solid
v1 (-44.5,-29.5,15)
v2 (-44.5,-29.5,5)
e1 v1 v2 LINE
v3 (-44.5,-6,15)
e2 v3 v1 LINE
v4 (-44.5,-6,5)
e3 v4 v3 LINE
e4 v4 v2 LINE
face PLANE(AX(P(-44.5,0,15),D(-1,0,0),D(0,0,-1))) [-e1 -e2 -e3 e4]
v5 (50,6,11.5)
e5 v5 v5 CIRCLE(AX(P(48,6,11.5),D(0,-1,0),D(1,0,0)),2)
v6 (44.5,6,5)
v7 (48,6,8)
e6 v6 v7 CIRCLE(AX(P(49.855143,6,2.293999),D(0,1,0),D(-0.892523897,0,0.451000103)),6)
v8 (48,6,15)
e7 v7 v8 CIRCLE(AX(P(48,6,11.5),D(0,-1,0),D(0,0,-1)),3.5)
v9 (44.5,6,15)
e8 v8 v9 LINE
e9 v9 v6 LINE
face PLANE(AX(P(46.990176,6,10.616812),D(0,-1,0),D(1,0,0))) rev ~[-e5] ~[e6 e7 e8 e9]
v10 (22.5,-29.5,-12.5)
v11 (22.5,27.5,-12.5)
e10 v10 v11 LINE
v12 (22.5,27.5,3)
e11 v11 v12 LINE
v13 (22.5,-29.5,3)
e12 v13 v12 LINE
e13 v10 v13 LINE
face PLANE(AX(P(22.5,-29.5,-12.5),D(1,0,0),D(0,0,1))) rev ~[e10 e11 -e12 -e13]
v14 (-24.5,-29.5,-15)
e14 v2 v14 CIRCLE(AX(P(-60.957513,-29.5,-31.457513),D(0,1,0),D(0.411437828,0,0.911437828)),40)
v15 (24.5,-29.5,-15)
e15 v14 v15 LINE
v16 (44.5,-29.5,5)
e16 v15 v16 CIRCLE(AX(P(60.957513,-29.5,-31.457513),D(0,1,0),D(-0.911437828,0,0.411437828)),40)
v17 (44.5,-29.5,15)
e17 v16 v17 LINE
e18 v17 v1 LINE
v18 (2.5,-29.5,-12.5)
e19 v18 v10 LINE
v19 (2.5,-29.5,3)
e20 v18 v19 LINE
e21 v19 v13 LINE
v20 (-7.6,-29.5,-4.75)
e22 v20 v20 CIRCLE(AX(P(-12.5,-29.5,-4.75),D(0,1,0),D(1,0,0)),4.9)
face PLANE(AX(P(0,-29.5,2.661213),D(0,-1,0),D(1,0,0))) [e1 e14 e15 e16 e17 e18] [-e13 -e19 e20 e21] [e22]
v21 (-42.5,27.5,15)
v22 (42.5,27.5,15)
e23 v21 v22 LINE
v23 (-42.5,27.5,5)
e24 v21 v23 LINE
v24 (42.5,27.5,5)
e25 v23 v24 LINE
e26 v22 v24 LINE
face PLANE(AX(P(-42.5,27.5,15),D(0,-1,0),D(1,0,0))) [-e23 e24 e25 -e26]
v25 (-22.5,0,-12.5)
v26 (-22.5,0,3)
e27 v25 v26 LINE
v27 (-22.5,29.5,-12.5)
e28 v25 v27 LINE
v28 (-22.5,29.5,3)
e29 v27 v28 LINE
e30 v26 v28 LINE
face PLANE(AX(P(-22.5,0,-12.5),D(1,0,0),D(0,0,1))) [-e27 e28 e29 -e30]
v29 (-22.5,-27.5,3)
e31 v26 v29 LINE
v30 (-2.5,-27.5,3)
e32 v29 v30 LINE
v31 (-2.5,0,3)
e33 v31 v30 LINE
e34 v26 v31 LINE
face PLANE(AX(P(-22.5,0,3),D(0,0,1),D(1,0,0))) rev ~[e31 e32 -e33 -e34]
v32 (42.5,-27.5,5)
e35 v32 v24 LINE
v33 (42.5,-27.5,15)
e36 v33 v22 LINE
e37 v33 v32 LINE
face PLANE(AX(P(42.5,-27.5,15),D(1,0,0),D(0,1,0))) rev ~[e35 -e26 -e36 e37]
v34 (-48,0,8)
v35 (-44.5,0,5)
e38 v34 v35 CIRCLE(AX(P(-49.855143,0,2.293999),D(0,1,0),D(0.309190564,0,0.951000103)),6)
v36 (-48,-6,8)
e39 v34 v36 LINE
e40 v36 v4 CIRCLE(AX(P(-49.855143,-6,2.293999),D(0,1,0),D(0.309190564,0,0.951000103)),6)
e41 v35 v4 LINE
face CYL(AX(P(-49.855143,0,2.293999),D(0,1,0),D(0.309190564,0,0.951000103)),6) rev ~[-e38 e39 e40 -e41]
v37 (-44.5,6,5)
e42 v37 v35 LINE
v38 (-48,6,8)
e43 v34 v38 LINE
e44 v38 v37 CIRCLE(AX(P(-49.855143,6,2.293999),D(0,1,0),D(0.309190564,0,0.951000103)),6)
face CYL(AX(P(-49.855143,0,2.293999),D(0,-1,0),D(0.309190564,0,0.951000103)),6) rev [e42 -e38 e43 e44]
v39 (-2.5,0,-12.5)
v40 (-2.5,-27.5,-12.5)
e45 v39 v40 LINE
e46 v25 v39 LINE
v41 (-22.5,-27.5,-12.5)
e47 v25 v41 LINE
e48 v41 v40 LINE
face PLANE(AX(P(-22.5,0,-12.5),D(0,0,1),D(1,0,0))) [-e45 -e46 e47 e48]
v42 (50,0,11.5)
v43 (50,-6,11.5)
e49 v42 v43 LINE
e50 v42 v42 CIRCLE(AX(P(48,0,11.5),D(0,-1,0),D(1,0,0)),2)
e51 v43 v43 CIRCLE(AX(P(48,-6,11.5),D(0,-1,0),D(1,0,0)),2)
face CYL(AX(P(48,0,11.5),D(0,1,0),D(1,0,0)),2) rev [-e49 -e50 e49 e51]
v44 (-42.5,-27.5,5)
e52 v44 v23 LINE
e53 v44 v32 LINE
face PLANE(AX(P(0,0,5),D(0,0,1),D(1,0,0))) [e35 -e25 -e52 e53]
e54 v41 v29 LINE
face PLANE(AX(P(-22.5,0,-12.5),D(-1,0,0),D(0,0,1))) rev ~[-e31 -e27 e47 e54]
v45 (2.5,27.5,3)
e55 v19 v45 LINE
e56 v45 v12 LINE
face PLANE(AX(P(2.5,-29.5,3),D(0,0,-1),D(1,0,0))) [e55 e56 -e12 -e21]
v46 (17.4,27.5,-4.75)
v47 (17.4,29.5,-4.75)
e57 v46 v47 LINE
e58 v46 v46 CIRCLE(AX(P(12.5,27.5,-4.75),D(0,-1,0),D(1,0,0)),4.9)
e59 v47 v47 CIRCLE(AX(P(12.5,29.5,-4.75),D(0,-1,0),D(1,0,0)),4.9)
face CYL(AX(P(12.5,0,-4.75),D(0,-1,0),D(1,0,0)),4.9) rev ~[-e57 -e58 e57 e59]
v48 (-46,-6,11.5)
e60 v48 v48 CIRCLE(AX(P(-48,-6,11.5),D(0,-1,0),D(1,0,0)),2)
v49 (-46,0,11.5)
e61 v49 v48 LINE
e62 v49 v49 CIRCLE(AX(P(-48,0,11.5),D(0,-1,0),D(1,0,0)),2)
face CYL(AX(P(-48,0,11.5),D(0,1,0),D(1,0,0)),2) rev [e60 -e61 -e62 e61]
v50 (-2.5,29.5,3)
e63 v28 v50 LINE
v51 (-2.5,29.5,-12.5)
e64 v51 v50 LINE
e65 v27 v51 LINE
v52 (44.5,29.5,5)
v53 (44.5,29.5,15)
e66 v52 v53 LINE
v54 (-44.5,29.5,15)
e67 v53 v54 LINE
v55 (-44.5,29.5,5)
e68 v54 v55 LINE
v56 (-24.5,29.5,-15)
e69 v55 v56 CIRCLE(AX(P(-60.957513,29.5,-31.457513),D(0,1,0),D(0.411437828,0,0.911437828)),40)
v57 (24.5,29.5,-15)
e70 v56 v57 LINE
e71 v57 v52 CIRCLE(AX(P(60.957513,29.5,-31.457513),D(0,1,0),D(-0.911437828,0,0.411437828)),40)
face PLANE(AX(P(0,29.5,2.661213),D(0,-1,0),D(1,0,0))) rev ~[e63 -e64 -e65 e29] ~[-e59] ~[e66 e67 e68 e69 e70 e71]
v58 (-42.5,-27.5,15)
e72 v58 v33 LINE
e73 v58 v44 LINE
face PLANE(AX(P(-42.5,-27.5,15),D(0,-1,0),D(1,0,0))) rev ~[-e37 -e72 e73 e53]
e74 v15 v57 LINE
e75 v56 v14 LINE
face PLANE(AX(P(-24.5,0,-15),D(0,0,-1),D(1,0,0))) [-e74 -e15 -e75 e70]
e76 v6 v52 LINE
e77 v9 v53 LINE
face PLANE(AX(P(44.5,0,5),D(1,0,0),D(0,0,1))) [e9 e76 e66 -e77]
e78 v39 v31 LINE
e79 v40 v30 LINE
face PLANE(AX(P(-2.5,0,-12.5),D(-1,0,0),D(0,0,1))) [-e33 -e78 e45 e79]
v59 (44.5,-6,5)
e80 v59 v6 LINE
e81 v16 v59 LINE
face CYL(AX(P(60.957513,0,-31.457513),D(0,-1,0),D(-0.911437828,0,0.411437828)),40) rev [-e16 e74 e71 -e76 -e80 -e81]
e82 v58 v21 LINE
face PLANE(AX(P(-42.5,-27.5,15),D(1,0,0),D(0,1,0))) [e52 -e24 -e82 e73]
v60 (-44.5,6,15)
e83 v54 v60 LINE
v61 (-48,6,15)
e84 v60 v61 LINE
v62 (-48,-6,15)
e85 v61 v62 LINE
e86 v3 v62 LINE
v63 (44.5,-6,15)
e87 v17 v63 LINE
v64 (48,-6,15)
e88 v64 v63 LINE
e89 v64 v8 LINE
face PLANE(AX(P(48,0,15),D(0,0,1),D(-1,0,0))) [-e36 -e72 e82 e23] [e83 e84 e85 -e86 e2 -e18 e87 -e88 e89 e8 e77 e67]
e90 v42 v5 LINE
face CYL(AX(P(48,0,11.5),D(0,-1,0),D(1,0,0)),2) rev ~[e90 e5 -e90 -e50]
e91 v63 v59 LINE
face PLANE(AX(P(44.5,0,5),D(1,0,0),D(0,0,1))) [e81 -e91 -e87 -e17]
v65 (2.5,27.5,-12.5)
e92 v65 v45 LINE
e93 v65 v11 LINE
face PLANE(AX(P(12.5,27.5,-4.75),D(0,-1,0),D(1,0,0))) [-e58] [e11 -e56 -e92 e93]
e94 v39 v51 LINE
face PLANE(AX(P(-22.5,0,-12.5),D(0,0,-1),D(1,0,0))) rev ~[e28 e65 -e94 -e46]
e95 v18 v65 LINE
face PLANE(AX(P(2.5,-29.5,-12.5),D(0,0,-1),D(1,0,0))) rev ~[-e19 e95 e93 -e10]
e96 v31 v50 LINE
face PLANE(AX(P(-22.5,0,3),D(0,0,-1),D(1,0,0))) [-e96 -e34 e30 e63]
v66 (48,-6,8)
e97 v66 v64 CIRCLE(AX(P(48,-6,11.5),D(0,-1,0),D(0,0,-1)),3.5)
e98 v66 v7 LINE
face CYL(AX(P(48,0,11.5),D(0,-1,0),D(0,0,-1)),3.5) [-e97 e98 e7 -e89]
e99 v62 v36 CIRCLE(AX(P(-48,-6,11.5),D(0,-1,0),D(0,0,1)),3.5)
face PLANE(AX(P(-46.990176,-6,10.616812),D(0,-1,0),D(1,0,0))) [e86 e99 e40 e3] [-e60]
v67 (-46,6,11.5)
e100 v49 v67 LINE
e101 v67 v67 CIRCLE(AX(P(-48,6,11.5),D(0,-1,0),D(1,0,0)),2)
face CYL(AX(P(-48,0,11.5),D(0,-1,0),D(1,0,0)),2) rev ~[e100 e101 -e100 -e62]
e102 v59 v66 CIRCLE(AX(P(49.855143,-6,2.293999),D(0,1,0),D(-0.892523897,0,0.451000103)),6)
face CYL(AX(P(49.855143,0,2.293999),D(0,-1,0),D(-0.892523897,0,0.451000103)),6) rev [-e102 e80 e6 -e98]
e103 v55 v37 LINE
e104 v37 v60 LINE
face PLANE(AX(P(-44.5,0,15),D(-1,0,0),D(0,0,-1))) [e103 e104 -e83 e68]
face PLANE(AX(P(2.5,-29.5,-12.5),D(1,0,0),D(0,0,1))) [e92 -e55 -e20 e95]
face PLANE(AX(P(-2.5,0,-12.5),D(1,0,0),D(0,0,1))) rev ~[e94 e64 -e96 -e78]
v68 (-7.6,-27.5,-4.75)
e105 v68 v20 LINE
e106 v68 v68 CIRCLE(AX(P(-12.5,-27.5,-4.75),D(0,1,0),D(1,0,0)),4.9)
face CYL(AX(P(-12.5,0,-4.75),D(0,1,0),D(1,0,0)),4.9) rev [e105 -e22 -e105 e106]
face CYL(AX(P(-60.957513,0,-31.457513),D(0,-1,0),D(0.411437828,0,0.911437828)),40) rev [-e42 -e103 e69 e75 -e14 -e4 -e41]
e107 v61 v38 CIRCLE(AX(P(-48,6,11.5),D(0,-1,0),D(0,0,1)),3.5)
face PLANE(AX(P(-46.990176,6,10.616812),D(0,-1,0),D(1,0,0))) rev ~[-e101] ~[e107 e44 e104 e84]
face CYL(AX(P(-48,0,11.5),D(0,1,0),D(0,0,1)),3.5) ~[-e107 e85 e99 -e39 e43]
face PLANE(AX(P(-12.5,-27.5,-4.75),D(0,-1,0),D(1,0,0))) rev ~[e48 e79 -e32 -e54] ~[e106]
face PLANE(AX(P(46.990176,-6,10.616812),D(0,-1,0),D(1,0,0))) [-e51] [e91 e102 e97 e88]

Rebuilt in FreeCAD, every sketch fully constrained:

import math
import FreeCAD as App
import Part
import Sketcher
from FreeCAD import Vector
Q = App.Units.Quantity

doc = App.newDocument("Part")
body = doc.addObject("PartDesign::Body", "Body")

# Sketch on XZ plane
sketch1 = doc.addObject("Sketcher::SketchObject", "Sketch")
body.addObject(sketch1)
sketch1.AttachmentSupport = (doc.XZ_Plane, [""])
sketch1.MapMode = "FlatFace"
sketch1.addGeometry([
    Part.LineSegment(Vector(44, 15, 0), Vector(-44, 15, 0)),  # 0
    Part.LineSegment(Vector(-44, 15, 0), Vector(-44, 5, 0)),  # 1
    Part.ArcOfCircle(Part.Circle(Vector(-61, -31, 0), Vector(0, 0, 1), 40), math.radians(24), math.radians(66)),  # 2
    Part.LineSegment(Vector(-24, -15, 0), Vector(24, -15, 0)),  # 3
    Part.ArcOfCircle(Part.Circle(Vector(61, -31, 0), Vector(0, 0, 1), 40), math.radians(114), math.radians(156)),  # 4
    Part.LineSegment(Vector(44, 5, 0), Vector(44, 15, 0)),  # 5
], False)
sketch1.addConstraint([
    Sketcher.Constraint("Coincident", 0, 2, 1, 1),
    Sketcher.Constraint("Coincident", 1, 2, 2, 2),
    Sketcher.Constraint("Coincident", 2, 1, 3, 1),
    Sketcher.Constraint("Coincident", 3, 2, 4, 2),
    Sketcher.Constraint("Coincident", 4, 1, 5, 1),
    Sketcher.Constraint("Coincident", 5, 2, 0, 1),
    Sketcher.Constraint("Horizontal", 0),
    Sketcher.Constraint("Vertical", 1),
    Sketcher.Constraint("Horizontal", 3),
    Sketcher.Constraint("Vertical", 5),
    Sketcher.Constraint("Equal", 2, 4),
    Sketcher.Constraint("Symmetric", 2, 3, 4, 3, -2),
    Sketcher.Constraint("Horizontal", 1, 2, 4, 1),
    Sketcher.Constraint("Radius", 2, Q("40 mm")),
    Sketcher.Constraint("DistanceX", 0, 2, 0, 1, Q("89 mm")),
    Sketcher.Constraint("DistanceX", 3, 1, 3, 2, Q("49 mm")),
    Sketcher.Constraint("DistanceY", 1, 2, 1, 1, Q("10 mm")),
    Sketcher.Constraint("DistanceY", -1, 1, 0, 2, Q("15 mm")),
    Sketcher.Constraint("DistanceY", 2, 1, -1, 1, Q("15 mm")),
])
pad1 = doc.addObject("PartDesign::Pad", "Pad")
body.addObject(pad1)
pad1.Profile = sketch1
pad1.Type = "TwoLengths"
pad1.Length = 29.5
pad1.Length2 = 29.5

# Sketch on XZ plane
sketch2 = doc.addObject("Sketcher::SketchObject", "Sketch001")
body.addObject(sketch2)
sketch2.AttachmentSupport = (doc.XZ_Plane, [""])
sketch2.MapMode = "FlatFace"
sketch2.addGeometry([
    Part.LineSegment(Vector(48, 15, 0), Vector(44.5, 15, 0)),  # 0
    Part.LineSegment(Vector(44.5, 15, 0), Vector(44.5, 5, 0)),  # 1
    Part.ArcOfCircle(Part.Circle(Vector(49.9, 2.3, 0), Vector(0, 0, 1), 6), math.radians(108), math.radians(153)),  # 2
    Part.ArcOfCircle(Part.Circle(Vector(48, 11.5, 0), Vector(0, 0, 1), 3.5), math.radians(-90), math.radians(90)),  # 3
    Part.Circle(Vector(48, 11.5, 0), Vector(0, 0, 1), 2),  # 4
    Part.LineSegment(Vector(-44.5, 5, 0), Vector(-44.5, 15, 0)),  # 5
    Part.LineSegment(Vector(-44.5, 15, 0), Vector(-48, 15, 0)),  # 6
    Part.ArcOfCircle(Part.Circle(Vector(-48, 11.5, 0), Vector(0, 0, 1), 3.5), math.radians(90), math.radians(270)),  # 7
    Part.ArcOfCircle(Part.Circle(Vector(-49.9, 2.3, 0), Vector(0, 0, 1), 6), math.radians(27), math.radians(72)),  # 8
    Part.Circle(Vector(-48, 11.5, 0), Vector(0, 0, 1), 2),  # 9
], False)
sketch2.addConstraint([
    Sketcher.Constraint("Coincident", 0, 2, 1, 1),
    Sketcher.Constraint("Coincident", 1, 2, 2, 2),
    Sketcher.Constraint("Coincident", 2, 1, 3, 1),
    Sketcher.Constraint("Tangent", 3, 2, 0, 1),
    Sketcher.Constraint("Coincident", 5, 2, 6, 1),
    Sketcher.Constraint("Tangent", 6, 2, 7, 1),
    Sketcher.Constraint("Coincident", 7, 2, 8, 2),
    Sketcher.Constraint("Coincident", 8, 1, 5, 1),
    Sketcher.Constraint("Horizontal", 0),
    Sketcher.Constraint("Vertical", 1),
    Sketcher.Constraint("Vertical", 5),
    Sketcher.Constraint("Horizontal", 6),
    Sketcher.Constraint("Coincident", 4, 3, 3, 3),
    Sketcher.Constraint("Coincident", 9, 3, 7, 3),
    Sketcher.Constraint("Equal", 3, 7),
    Sketcher.Constraint("Equal", 2, 8),
    Sketcher.Constraint("Equal", 4, 9),
    Sketcher.Constraint("Symmetric", 3, 3, 7, 3, -2),
    Sketcher.Constraint("Symmetric", 2, 3, 8, 3, -2),
    Sketcher.Constraint("Horizontal", 1, 2, 8, 1),
    Sketcher.Constraint("Vertical", 4, 3, 2, 1),
    Sketcher.Constraint("Diameter", 4, Q("4 mm")),
    Sketcher.Constraint("Radius", 2, Q("6 mm")),
    Sketcher.Constraint("Radius", 3, Q("3.5 mm")),
    Sketcher.Constraint("DistanceY", 1, 2, 1, 1, Q("10 mm")),
    Sketcher.Constraint("DistanceX", 0, 2, 0, 1, Q("3.5 mm")),
    Sketcher.Constraint("DistanceX", -1, 1, 3, 3, Q("48 mm")),
    Sketcher.Constraint("DistanceY", -1, 1, 0, 2, Q("15 mm")),
])
pad2 = doc.addObject("PartDesign::Pad", "Pad001")
body.addObject(pad2)
pad2.Profile = sketch2
pad2.Type = "TwoLengths"
pad2.Length = 6
pad2.Length2 = 6

# Sketch on XY plane
sketch3 = doc.addObject("Sketcher::SketchObject", "Sketch002")
body.addObject(sketch3)
sketch3.AttachmentSupport = (doc.XY_Plane, [""])
sketch3.MapMode = "FlatFace"
sketch3.AttachmentOffset = App.Placement(Vector(0, 0, 15), App.Rotation())
sketch3.addGeometry([
    Part.LineSegment(Vector(-42, 28, 0), Vector(-42, -28, 0)),
    Part.LineSegment(Vector(-42, -28, 0), Vector(42, -28, 0)),
    Part.LineSegment(Vector(42, -28, 0), Vector(42, 28, 0)),
    Part.LineSegment(Vector(42, 28, 0), Vector(-42, 28, 0)),
], False)
sketch3.addConstraint([
    Sketcher.Constraint("Coincident", 0, 2, 1, 1),
    Sketcher.Constraint("Coincident", 1, 2, 2, 1),
    Sketcher.Constraint("Coincident", 2, 2, 3, 1),
    Sketcher.Constraint("Coincident", 3, 2, 0, 1),
    Sketcher.Constraint("Vertical", 0),
    Sketcher.Constraint("Horizontal", 1),
    Sketcher.Constraint("Vertical", 2),
    Sketcher.Constraint("Horizontal", 3),
    Sketcher.Constraint("Symmetric", 0, 2, 2, 2, -1, 1),
    Sketcher.Constraint("DistanceX", 1, 1, 1, 2, Q("85 mm")),
    Sketcher.Constraint("DistanceY", 0, 2, 0, 1, Q("55 mm")),
])
pocket1 = doc.addObject("PartDesign::Pocket", "Pocket")
body.addObject(pocket1)
pocket1.Profile = sketch3
pocket1.Length = 10

# Sketch on XZ plane
sketch4 = doc.addObject("Sketcher::SketchObject", "Sketch003")
body.addObject(sketch4)
sketch4.AttachmentSupport = (doc.XZ_Plane, [""])
sketch4.MapMode = "FlatFace"
sketch4.addGeometry([
    Part.LineSegment(Vector(-22, 3, 0), Vector(-22, -12, 0)),
    Part.LineSegment(Vector(-22, -12, 0), Vector(-2, -12, 0)),
    Part.LineSegment(Vector(-2, -12, 0), Vector(-2, 3, 0)),
    Part.LineSegment(Vector(-2, 3, 0), Vector(-22, 3, 0)),
], False)
sketch4.addConstraint([
    Sketcher.Constraint("Coincident", 0, 2, 1, 1),
    Sketcher.Constraint("Coincident", 1, 2, 2, 1),
    Sketcher.Constraint("Coincident", 2, 2, 3, 1),
    Sketcher.Constraint("Coincident", 3, 2, 0, 1),
    Sketcher.Constraint("Vertical", 0),
    Sketcher.Constraint("Horizontal", 1),
    Sketcher.Constraint("Vertical", 2),
    Sketcher.Constraint("Horizontal", 3),
    Sketcher.Constraint("DistanceX", 1, 1, 1, 2, Q("20 mm")),
    Sketcher.Constraint("DistanceY", 0, 2, 0, 1, Q("15.5 mm")),
    Sketcher.Constraint("DistanceY", -1, 1, 2, 2, Q("3 mm")),
    Sketcher.Constraint("DistanceX", 0, 2, -1, 1, Q("22.5 mm")),
])
pocket2 = doc.addObject("PartDesign::Pocket", "Pocket001")
body.addObject(pocket2)
pocket2.Profile = sketch4
pocket2.Type = "TwoLengths"
pocket2.Length = 29.5
pocket2.Length2 = 27.5

# Sketch on XZ plane
sketch5 = doc.addObject("Sketcher::SketchObject", "Sketch004")
body.addObject(sketch5)
sketch5.AttachmentSupport = (doc.XZ_Plane, [""])
sketch5.MapMode = "FlatFace"
sketch5.AttachmentOffset = App.Placement(Vector(0, 0, 29.5), App.Rotation())
sketch5.addGeometry([
    Part.LineSegment(Vector(2, 3, 0), Vector(2, -12, 0)),
    Part.LineSegment(Vector(2, -12, 0), Vector(22, -12, 0)),
    Part.LineSegment(Vector(22, -12, 0), Vector(22, 3, 0)),
    Part.LineSegment(Vector(22, 3, 0), Vector(2, 3, 0)),
], False)
sketch5.addConstraint([
    Sketcher.Constraint("Coincident", 0, 2, 1, 1),
    Sketcher.Constraint("Coincident", 1, 2, 2, 1),
    Sketcher.Constraint("Coincident", 2, 2, 3, 1),
    Sketcher.Constraint("Coincident", 3, 2, 0, 1),
    Sketcher.Constraint("Vertical", 0),
    Sketcher.Constraint("Horizontal", 1),
    Sketcher.Constraint("Vertical", 2),
    Sketcher.Constraint("Horizontal", 3),
    Sketcher.Constraint("DistanceX", 1, 1, 1, 2, Q("20 mm")),
    Sketcher.Constraint("DistanceY", 0, 2, 0, 1, Q("15.5 mm")),
    Sketcher.Constraint("DistanceY", -1, 1, 2, 2, Q("3 mm")),
    Sketcher.Constraint("DistanceX", -1, 1, 0, 2, Q("2.5 mm")),
])
pocket3 = doc.addObject("PartDesign::Pocket", "Pocket002")
body.addObject(pocket3)
pocket3.Profile = sketch5
pocket3.Length = 57

# Sketch on XZ plane
sketch6 = doc.addObject("Sketcher::SketchObject", "Sketch005")
body.addObject(sketch6)
sketch6.AttachmentSupport = (doc.XZ_Plane, [""])
sketch6.MapMode = "FlatFace"
sketch6.addGeometry([
    Part.Circle(Vector(-12.5, -4.8, 0), Vector(0, 0, 1), 4.9),
    Part.Circle(Vector(12.5, -4.8, 0), Vector(0, 0, 1), 4.9),
], False)
sketch6.addConstraint([
    Sketcher.Constraint("Equal", 0, 1),
    Sketcher.Constraint("Symmetric", 0, 3, 1, 3, -2),
    Sketcher.Constraint("Diameter", 0, Q("9.8 mm")),
    Sketcher.Constraint("DistanceX", 0, 3, 1, 3, Q("25 mm")),
    Sketcher.Constraint("DistanceY", 0, 3, -1, 1, Q("4.75 mm")),
])
pocket4 = doc.addObject("PartDesign::Pocket", "Pocket003")
body.addObject(pocket4)
pocket4.Profile = sketch6
pocket4.Type = "ThroughAll"
pocket4.Midplane = True

doc.recompute()
